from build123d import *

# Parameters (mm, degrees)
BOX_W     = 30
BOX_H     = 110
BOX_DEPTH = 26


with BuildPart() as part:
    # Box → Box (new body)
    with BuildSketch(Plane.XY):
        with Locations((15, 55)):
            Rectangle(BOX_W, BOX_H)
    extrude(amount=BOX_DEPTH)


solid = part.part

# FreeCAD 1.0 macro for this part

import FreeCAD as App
import Part
import Sketcher
Q = App.Units.Quantity

doc = App.newDocument("Part")
body = doc.addObject("PartDesign::Body", "Body")

sketch1 = body.newObject("Sketcher::SketchObject", "Sketch")
sketch1.AttachmentSupport = (doc.getObject("XY_Plane"), [""])
sketch1.MapMode = "FlatFace"
sketch1.addGeometry(Part.LineSegment(App.Vector(0, 110, 0), App.Vector(0, 0, 0)), False)
sketch1.addGeometry(Part.LineSegment(App.Vector(0, 0, 0), App.Vector(30, 0, 0)), False)
sketch1.addGeometry(Part.LineSegment(App.Vector(30, 0, 0), App.Vector(30, 110, 0)), False)
sketch1.addGeometry(Part.LineSegment(App.Vector(30, 110, 0), App.Vector(0, 110, 0)), False)
sketch1.addConstraint(Sketcher.Constraint("Coincident", 0, 2, 1, 1))
sketch1.addConstraint(Sketcher.Constraint("Coincident", 1, 2, 2, 1))
sketch1.addConstraint(Sketcher.Constraint("Coincident", 2, 2, 3, 1))
sketch1.addConstraint(Sketcher.Constraint("Coincident", 3, 2, 0, 1))
sketch1.addConstraint(Sketcher.Constraint("Vertical", 0))
sketch1.addConstraint(Sketcher.Constraint("Horizontal", 1))
sketch1.addConstraint(Sketcher.Constraint("Vertical", 2))
sketch1.addConstraint(Sketcher.Constraint("Horizontal", 3))
sketch1.addConstraint(Sketcher.Constraint("Coincident", 0, 2, -1, 1))
sketch1.addConstraint(Sketcher.Constraint("DistanceX", 1, 1, 1, 2, Q("30 mm")))
sketch1.addConstraint(Sketcher.Constraint("DistanceY", 0, 2, 0, 1, Q("110 mm")))
pad1 = body.newObject("PartDesign::Pad", "Pad")
pad1.Profile = sketch1
pad1.Length = 26

doc.recompute()
